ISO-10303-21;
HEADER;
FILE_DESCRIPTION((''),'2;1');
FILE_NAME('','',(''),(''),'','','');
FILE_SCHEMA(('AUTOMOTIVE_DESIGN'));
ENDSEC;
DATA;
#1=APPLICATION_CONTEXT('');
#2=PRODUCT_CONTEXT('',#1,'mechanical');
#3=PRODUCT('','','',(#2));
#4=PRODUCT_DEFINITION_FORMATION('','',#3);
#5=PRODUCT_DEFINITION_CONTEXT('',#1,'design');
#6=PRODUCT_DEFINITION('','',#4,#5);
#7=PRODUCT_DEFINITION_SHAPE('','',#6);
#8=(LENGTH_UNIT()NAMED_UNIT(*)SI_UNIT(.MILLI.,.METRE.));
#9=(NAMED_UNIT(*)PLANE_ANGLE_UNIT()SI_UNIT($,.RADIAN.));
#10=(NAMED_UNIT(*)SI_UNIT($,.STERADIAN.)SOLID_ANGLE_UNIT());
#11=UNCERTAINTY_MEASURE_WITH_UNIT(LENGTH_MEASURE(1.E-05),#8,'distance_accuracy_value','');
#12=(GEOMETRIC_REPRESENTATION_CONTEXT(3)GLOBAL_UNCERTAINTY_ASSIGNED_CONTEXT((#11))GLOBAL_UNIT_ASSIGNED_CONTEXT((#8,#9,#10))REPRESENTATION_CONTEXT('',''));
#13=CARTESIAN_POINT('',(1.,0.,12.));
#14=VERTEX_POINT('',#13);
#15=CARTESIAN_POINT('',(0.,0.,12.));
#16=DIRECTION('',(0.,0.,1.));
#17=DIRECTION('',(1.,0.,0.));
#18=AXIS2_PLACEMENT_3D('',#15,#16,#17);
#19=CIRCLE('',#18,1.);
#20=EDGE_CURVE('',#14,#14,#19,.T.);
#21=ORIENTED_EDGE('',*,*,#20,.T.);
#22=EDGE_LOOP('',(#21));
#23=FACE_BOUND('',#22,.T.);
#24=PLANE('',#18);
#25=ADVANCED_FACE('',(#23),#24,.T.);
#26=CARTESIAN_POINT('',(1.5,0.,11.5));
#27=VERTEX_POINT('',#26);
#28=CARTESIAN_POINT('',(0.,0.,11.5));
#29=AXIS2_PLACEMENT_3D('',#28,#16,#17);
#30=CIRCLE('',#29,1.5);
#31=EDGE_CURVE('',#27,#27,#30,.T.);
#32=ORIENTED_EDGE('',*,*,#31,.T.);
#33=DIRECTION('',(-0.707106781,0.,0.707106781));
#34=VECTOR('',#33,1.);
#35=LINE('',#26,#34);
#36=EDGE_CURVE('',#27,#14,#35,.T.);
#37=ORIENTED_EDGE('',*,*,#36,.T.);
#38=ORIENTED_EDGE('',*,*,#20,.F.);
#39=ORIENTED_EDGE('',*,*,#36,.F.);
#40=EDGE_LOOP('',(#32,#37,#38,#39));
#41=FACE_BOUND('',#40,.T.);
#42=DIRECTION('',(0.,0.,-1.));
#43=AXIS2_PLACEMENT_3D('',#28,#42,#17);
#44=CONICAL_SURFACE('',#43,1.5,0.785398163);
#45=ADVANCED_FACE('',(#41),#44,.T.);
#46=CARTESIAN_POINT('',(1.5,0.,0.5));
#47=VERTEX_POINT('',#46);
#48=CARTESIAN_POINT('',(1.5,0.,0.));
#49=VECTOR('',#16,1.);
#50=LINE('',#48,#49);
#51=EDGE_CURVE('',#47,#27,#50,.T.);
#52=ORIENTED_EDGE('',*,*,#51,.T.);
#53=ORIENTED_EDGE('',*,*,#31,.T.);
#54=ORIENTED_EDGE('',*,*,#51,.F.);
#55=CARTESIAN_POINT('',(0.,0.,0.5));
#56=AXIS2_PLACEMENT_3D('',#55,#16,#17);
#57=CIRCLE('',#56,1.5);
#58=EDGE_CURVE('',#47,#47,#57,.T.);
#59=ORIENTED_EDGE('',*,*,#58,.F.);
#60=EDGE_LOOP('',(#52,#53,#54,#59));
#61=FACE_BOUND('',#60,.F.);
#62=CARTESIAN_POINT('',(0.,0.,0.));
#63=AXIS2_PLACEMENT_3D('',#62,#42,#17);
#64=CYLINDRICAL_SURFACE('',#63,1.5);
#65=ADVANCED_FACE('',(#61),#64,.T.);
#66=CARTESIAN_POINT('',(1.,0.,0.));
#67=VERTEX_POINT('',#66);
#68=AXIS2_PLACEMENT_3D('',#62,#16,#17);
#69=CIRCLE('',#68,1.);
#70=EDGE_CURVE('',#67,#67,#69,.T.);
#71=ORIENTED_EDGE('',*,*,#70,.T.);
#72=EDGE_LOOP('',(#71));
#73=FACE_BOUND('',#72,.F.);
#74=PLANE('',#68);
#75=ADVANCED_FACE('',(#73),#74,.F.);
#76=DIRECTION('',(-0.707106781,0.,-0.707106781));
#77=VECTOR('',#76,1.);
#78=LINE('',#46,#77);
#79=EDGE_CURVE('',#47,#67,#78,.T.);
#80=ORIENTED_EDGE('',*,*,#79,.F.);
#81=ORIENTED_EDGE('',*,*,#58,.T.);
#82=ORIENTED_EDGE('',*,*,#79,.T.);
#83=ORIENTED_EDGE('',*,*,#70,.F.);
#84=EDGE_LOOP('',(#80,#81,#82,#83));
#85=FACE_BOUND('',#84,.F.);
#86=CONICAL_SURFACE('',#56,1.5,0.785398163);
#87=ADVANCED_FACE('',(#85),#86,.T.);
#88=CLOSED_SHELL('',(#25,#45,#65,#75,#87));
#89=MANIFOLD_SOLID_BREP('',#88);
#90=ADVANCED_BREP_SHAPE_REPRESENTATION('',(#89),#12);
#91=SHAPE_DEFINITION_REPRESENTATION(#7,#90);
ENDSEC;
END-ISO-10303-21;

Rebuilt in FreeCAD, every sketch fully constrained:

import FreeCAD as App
import Part
import Sketcher


def edges_at(feature, points):
    """Names of the edges that pass closest to the given points."""
    edges = feature.Shape.Edges
    near = lambda p: min(range(len(edges)), key=lambda i: edges[i].distToShape(Part.Vertex(*p))[0])
    return sorted({f"Edge{near(p) + 1}" for p in points})

doc = App.newDocument("Part")
params = doc.addObject("Spreadsheet::Sheet", "Params")
for row, (alias, value) in enumerate([
    ("sketch1_diameter", "3 mm"),
    ("pad1_length", "12 mm"),
    ("chamfer_size", "0.5 mm"),
], start=1):
    params.set(f"A{row}", alias)
    params.set(f"B{row}", "=" + value)
    params.setAlias(f"B{row}", alias)

body = doc.addObject("PartDesign::Body", "Body")

# Sketch on XY plane
sketch1 = body.newObject("Sketcher::SketchObject", "Sketch")
sketch1.AttachmentSupport = (doc.getObject("XY_Plane"), [""])
sketch1.MapMode = "FlatFace"
sketch1.addGeometry(Part.Circle(App.Vector(0, 0, 0), App.Vector(0, 0, 1), 1.5), False)
sketch1.addConstraint([
    Sketcher.Constraint("Coincident", 0, 3, -1, 1),
    Sketcher.Constraint("Diameter", 0, 3.0),
])
sketch1.setExpression("Constraints[1]", "Params.sketch1_diameter")
pad1 = body.newObject("PartDesign::Pad", "Pad")
pad1.Profile = sketch1
pad1.setExpression("Length", "Params.pad1_length")
doc.recompute()

chamfer = body.newObject("PartDesign::Chamfer", "Chamfer")
chamfer.Base = (pad1, edges_at(pad1, [(-1.5, 0, 12), (-1.5, 0, 0)]))
chamfer.setExpression("Size", "Params.chamfer_size")

doc.recompute()
